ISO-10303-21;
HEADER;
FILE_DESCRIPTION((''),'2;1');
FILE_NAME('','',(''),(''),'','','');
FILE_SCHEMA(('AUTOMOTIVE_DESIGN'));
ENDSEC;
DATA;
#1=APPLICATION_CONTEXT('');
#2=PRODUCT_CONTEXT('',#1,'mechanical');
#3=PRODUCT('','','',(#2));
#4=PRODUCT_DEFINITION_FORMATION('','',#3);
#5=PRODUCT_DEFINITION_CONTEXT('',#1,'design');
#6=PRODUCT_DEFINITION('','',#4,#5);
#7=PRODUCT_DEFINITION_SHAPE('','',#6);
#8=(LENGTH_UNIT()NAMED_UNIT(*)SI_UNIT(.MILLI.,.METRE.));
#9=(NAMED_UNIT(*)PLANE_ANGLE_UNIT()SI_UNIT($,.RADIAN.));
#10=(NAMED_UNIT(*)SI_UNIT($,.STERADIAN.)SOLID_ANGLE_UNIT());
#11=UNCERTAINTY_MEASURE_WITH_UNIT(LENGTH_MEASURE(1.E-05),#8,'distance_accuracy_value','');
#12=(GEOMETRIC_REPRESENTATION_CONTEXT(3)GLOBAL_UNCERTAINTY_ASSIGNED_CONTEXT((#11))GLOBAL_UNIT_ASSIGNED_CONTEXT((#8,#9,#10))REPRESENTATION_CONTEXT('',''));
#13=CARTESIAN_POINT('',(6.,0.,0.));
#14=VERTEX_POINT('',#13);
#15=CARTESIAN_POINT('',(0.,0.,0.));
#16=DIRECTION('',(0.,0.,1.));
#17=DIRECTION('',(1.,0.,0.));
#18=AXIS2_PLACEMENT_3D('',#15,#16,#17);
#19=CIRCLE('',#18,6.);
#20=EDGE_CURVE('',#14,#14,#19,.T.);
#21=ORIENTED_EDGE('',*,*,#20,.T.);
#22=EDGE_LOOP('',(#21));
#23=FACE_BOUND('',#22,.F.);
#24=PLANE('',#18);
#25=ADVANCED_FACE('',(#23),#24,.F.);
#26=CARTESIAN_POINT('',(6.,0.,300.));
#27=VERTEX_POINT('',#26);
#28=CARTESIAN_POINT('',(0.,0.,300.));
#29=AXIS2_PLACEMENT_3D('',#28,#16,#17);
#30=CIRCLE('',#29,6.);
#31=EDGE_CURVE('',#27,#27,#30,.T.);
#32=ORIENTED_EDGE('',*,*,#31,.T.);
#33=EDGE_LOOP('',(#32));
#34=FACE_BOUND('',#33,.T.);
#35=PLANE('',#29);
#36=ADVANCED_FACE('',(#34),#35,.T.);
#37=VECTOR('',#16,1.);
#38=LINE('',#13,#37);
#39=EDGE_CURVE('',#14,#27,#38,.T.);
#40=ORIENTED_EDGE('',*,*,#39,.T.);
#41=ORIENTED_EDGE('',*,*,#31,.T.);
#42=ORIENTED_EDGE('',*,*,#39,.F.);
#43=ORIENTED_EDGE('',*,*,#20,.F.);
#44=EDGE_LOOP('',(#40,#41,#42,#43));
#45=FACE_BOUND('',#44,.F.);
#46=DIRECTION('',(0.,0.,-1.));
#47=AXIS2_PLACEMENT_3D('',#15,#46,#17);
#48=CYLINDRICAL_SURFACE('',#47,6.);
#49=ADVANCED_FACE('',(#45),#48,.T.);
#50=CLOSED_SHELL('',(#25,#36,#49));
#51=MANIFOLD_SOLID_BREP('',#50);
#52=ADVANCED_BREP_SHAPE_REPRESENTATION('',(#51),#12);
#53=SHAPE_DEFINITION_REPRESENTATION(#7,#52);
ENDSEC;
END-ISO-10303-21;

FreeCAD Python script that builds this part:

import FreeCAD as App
import Part
import Sketcher
Q = App.Units.Quantity

doc = App.newDocument("Part")
body = doc.addObject("PartDesign::Body", "Body")

# Sketch on XY plane
sketch1 = doc.addObject("Sketcher::SketchObject", "Sketch")
body.addObject(sketch1)
sketch1.AttachmentSupport = (doc.XY_Plane, [""])
sketch1.MapMode = "FlatFace"
sketch1.addGeometry(Part.Circle(App.Vector(0, 0, 0), App.Vector(0, 0, 1), 6), False)
sketch1.addConstraint(Sketcher.Constraint("Coincident", 0, 3, -1, 1))
sketch1.addConstraint(Sketcher.Constraint("Diameter", 0, Q("12 mm")))
pad1 = doc.addObject("PartDesign::Pad", "Pad")
body.addObject(pad1)
pad1.Profile = sketch1
pad1.Length = 300

doc.recompute()
